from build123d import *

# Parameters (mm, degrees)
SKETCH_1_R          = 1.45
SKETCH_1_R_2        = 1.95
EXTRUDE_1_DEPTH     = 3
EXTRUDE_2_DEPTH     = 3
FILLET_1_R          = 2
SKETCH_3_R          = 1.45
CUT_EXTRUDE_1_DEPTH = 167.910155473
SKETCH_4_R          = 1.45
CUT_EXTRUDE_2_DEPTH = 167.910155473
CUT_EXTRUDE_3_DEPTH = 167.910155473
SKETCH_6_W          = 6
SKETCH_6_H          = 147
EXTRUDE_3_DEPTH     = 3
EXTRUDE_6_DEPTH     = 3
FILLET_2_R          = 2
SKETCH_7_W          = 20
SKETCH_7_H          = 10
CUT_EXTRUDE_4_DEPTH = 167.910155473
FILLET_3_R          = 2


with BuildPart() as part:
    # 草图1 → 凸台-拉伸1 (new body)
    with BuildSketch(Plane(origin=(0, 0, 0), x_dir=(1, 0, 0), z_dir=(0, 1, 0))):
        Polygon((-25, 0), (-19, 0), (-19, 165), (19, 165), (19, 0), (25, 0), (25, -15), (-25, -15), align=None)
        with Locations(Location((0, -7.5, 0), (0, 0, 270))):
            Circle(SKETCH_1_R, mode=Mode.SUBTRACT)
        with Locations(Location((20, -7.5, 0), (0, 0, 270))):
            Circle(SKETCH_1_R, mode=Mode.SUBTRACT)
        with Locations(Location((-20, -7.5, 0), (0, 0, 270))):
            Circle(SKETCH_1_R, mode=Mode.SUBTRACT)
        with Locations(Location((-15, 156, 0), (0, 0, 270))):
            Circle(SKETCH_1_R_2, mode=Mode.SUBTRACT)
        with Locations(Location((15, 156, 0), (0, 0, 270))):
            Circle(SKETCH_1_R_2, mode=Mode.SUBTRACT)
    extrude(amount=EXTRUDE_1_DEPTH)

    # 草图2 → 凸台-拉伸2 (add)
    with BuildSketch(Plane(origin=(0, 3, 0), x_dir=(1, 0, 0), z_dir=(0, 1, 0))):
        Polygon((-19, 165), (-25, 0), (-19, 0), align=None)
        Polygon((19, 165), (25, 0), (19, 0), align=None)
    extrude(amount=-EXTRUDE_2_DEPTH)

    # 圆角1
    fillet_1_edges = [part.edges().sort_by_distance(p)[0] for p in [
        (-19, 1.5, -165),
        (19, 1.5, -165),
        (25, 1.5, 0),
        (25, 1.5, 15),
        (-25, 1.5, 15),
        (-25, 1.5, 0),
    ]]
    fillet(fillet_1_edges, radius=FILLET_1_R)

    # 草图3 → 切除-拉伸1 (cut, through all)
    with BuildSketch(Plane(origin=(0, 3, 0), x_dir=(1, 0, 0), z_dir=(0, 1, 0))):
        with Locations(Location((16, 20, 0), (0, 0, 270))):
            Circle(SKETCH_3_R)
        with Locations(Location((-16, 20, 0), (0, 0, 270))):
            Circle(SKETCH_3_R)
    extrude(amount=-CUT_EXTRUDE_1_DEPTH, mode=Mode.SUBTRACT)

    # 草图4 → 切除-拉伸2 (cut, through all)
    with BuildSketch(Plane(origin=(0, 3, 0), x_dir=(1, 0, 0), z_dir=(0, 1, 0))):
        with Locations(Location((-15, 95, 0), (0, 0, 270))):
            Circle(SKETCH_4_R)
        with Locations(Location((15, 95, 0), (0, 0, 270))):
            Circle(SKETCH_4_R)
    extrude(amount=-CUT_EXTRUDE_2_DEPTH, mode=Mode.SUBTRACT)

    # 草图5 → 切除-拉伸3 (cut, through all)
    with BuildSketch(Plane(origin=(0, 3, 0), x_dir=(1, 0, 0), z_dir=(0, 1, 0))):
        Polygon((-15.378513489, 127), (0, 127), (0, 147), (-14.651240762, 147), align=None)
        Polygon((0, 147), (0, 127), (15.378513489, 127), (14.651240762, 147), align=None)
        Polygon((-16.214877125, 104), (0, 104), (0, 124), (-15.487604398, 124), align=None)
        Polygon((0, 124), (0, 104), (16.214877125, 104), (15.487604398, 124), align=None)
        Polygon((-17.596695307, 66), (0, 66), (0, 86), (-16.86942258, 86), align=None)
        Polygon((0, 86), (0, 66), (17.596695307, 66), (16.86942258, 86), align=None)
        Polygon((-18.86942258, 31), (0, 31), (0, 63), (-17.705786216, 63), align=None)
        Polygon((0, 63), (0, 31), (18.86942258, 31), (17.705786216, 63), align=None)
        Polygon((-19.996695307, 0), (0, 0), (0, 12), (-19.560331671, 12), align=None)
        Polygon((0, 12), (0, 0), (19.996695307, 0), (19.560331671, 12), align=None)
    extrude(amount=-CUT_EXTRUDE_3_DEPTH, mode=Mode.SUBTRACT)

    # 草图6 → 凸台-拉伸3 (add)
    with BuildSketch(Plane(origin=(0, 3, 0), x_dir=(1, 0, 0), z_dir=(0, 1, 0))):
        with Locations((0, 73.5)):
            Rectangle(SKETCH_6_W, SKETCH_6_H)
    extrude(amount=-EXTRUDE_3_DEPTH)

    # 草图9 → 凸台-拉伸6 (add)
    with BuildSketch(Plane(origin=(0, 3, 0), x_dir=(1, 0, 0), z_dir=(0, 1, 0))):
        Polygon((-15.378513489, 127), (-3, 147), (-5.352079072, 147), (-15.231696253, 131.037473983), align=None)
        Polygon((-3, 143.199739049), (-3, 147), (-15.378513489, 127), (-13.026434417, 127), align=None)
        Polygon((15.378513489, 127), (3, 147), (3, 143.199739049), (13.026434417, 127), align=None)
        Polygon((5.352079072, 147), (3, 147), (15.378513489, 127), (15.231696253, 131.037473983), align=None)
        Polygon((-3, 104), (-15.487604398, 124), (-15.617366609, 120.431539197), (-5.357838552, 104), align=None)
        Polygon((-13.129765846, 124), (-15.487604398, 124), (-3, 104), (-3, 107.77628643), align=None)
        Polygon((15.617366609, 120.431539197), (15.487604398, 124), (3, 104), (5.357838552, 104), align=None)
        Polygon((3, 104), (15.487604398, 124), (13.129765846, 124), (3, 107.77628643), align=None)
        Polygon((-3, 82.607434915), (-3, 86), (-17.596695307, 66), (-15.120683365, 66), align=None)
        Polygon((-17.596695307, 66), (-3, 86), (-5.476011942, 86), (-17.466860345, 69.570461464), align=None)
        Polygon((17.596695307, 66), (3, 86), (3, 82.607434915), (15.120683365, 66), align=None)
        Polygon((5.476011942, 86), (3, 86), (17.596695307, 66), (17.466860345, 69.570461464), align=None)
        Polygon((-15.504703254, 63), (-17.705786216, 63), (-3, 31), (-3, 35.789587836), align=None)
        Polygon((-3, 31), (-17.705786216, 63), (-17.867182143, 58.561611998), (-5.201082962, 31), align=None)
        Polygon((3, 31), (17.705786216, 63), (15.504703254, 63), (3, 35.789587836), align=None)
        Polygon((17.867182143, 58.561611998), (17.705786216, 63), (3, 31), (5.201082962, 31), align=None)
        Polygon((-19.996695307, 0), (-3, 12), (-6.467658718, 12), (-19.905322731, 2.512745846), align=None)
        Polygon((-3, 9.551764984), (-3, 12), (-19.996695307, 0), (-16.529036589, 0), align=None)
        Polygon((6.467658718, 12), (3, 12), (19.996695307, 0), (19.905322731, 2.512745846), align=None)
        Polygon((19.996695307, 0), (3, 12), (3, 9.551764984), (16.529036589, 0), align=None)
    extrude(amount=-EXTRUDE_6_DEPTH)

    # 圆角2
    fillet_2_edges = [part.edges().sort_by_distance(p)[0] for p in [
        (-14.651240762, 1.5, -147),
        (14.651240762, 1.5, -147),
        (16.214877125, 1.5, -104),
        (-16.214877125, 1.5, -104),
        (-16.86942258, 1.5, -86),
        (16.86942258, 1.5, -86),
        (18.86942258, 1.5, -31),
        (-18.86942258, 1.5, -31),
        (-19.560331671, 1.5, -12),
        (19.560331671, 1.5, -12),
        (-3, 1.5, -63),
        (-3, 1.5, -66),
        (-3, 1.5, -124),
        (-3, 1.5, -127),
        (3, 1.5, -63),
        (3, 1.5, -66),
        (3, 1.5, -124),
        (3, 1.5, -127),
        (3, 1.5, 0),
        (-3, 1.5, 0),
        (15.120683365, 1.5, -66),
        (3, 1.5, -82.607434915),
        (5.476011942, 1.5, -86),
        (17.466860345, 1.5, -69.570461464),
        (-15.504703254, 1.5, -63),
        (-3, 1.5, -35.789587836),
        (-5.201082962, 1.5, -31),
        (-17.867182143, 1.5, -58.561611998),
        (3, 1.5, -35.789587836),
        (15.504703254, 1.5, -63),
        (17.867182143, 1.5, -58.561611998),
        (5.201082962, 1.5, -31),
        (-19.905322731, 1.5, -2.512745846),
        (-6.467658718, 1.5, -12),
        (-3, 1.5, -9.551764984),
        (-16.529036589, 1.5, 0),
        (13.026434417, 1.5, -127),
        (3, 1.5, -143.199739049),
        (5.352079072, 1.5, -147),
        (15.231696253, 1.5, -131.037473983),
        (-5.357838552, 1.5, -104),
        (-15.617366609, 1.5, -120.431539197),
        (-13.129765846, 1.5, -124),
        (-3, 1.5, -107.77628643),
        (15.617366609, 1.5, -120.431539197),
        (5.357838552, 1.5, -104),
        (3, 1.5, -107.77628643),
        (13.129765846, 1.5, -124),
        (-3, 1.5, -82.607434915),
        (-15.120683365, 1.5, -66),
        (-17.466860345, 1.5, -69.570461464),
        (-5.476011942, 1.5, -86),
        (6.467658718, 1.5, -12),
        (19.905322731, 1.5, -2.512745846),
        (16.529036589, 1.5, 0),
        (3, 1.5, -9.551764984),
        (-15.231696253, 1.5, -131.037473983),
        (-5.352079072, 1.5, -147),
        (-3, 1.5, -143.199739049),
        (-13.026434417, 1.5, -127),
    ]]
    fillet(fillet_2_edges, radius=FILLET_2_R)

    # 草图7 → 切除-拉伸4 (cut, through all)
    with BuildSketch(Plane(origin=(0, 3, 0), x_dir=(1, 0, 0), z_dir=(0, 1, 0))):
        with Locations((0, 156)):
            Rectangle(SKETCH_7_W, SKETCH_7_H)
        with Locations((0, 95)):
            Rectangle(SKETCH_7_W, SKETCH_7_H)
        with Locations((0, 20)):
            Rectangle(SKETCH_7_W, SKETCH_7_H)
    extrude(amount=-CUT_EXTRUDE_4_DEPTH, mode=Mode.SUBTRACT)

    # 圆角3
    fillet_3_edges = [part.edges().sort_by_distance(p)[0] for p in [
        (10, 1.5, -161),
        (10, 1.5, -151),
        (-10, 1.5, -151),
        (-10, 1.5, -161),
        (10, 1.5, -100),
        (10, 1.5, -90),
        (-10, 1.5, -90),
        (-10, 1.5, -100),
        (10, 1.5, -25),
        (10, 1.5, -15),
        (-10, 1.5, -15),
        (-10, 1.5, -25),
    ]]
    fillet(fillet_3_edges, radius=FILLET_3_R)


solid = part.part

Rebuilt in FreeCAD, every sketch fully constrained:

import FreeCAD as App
import Part
import Sketcher

V = App.Vector
Q = App.Units.Quantity


def edges_at(feature, points):
    """Names of the edges that pass closest to the given points."""
    edges = feature.Shape.Edges
    near = lambda p: min(range(len(edges)), key=lambda i: edges[i].distToShape(Part.Vertex(*p))[0])
    return sorted({f"Edge{near(p) + 1}" for p in points})


def add_polygon(sketch, points):
    """Adds a closed chain of lines whose ends are joined by coincident constraints."""
    first, n = sketch.GeometryCount, len(points)
    for a, b in zip(points, points[1:] + points[:1]):
        sketch.addGeometry(Part.LineSegment(App.Vector(*a, 0), App.Vector(*b, 0)), False)
    for i in range(n):
        sketch.addConstraint(Sketcher.Constraint("Coincident", first + i, 2, first + (i + 1) % n, 1))

doc = App.newDocument("Part")
body = doc.addObject("PartDesign::Body", "Body")

sketch1 = body.newObject("Sketcher::SketchObject", "Sketch")
sketch1.AttachmentSupport = (doc.getObject("XZ_Plane"), [""])
sketch1.MapMode = "FlatFace"
add_polygon(sketch1, [(-19, 0), (-25, 0), (-25, 15), (25, 15), (25, 0), (19, 0), (19, -165), (-19, -165)])
sketch1.addGeometry(Part.Circle(V(20, 7.5, 0), V(0, 0, 1), 1.4), False)
sketch1.addGeometry(Part.Circle(V(0, 7.5, 0), V(0, 0, 1), 1.4), False)
sketch1.addGeometry(Part.Circle(V(-20, 7.5, 0), V(0, 0, 1), 1.4), False)
sketch1.addGeometry(Part.Circle(V(15, -156, 0), V(0, 0, 1), 1.9), False)
sketch1.addGeometry(Part.Circle(V(-15, -156, 0), V(0, 0, 1), 1.9), False)
sketch1.addConstraint([
    Sketcher.Constraint("Horizontal", 0),
    Sketcher.Constraint("Vertical", 1),
    Sketcher.Constraint("Horizontal", 2),
    Sketcher.Constraint("Vertical", 3),
    Sketcher.Constraint("Horizontal", 4),
    Sketcher.Constraint("Vertical", 5),
    Sketcher.Constraint("Horizontal", 6),
    Sketcher.Constraint("Vertical", 7),
    Sketcher.Constraint("Equal", 8, 9),
    Sketcher.Constraint("Equal", 9, 10),
    Sketcher.Constraint("Equal", 11, 12),
    Sketcher.Constraint("Symmetric", 0, 2, 3, 2, -1, 1),
    Sketcher.Constraint("Symmetric", 8, 3, 10, 3, -2),
    Sketcher.Constraint("Symmetric", 11, 3, 12, 3, -2),
    Sketcher.Constraint("Symmetric", 4, 2, 7, 2, -2),
    Sketcher.Constraint("PointOnObject", 9, 3, -2),
    Sketcher.Constraint("Horizontal", 8, 3, 9, 3),
    Sketcher.Constraint("Diameter", 8, Q("2.9 mm")),
    Sketcher.Constraint("Diameter", 11, Q("3.9 mm")),
    Sketcher.Constraint("DistanceX", 0, 2, 0, 1, Q("6 mm")),
    Sketcher.Constraint("DistanceX", 2, 1, 2, 2, Q("50 mm")),
    Sketcher.Constraint("DistanceY", 1, 1, 1, 2, Q("15 mm")),
    Sketcher.Constraint("DistanceY", 5, 2, 5, 1, Q("165 mm")),
    Sketcher.Constraint("DistanceX", -1, 1, 8, 3, Q("20 mm")),
    Sketcher.Constraint("DistanceX", -1, 1, 11, 3, Q("15 mm")),
    Sketcher.Constraint("DistanceY", 11, 3, -1, 1, Q("156 mm")),
    Sketcher.Constraint("DistanceY", -1, 1, 8, 3, Q("7.5 mm")),
])
pad1 = body.newObject("PartDesign::Pad", "Pad")
pad1.Profile = sketch1
pad1.Length = 3
pad1.Reversed = True

sketch2 = body.newObject("Sketcher::SketchObject", "Sketch001")
sketch2.AttachmentSupport = (doc.getObject("XZ_Plane"), [""])
sketch2.MapMode = "FlatFace"
sketch2.AttachmentOffset = App.Placement(V(0, 0, -3), App.Rotation())
add_polygon(sketch2, [(-19, -165), (-25, 0), (-19, 0)])
add_polygon(sketch2, [(25, 0), (19, -165), (19, 0)])
sketch2.addConstraint([
    Sketcher.Constraint("Horizontal", 1),
    Sketcher.Constraint("Vertical", 2),
    Sketcher.Constraint("Vertical", 4),
    Sketcher.Constraint("Horizontal", 5),
    Sketcher.Constraint("Symmetric", 1, 2, 4, 2, -1, 1),
    Sketcher.Constraint("Symmetric", 0, 2, 5, 2, -2),
    Sketcher.Constraint("Horizontal", 2, 2, 3, 2),
    Sketcher.Constraint("DistanceX", 1, 1, 1, 2, Q("6 mm")),
    Sketcher.Constraint("DistanceY", 2, 2, 2, 1, Q("165 mm")),
    Sketcher.Constraint("DistanceX", 0, 2, -1, 1, Q("25 mm")),
])
pad2 = body.newObject("PartDesign::Pad", "Pad001")
pad2.Profile = sketch2
pad2.Length = 3
doc.recompute()

fillet = body.newObject("PartDesign::Fillet", "Fillet")
fillet.Base = (pad2, edges_at(pad2, [
    (-19, 1.5, -165),
    (19, 1.5, -165),
    (25, 1.5, 0),
    (25, 1.5, 15),
    (-25, 1.5, 15),
    (-25, 1.5, 0),
]))
fillet.Radius = 2

sketch3 = body.newObject("Sketcher::SketchObject", "Sketch002")
sketch3.AttachmentSupport = (doc.getObject("XZ_Plane"), [""])
sketch3.MapMode = "FlatFace"
sketch3.AttachmentOffset = App.Placement(V(0, 0, -3), App.Rotation())
sketch3.addGeometry([
    Part.Circle(V(16, -20, 0), V(0, 0, 1), 1.4),
    Part.Circle(V(-16, -20, 0), V(0, 0, 1), 1.4),
], False)
sketch3.addConstraint([
    Sketcher.Constraint("Equal", 0, 1),
    Sketcher.Constraint("Symmetric", 0, 3, 1, 3, -2),
    Sketcher.Constraint("Diameter", 0, Q("2.9 mm")),
    Sketcher.Constraint("DistanceX", -1, 1, 0, 3, Q("16 mm")),
    Sketcher.Constraint("DistanceY", 0, 3, -1, 1, Q("20 mm")),
])
pocket1 = body.newObject("PartDesign::Pocket", "Pocket")
pocket1.Profile = sketch3
pocket1.Type = "ThroughAll"
pocket1.Reversed = True

sketch4 = body.newObject("Sketcher::SketchObject", "Sketch003")
sketch4.AttachmentSupport = (doc.getObject("XZ_Plane"), [""])
sketch4.MapMode = "FlatFace"
sketch4.AttachmentOffset = App.Placement(V(0, 0, -3), App.Rotation())
sketch4.addGeometry([
    Part.Circle(V(-15, -95, 0), V(0, 0, 1), 1.4),
    Part.Circle(V(15, -95, 0), V(0, 0, 1), 1.4),
], False)
sketch4.addConstraint([
    Sketcher.Constraint("Equal", 0, 1),
    Sketcher.Constraint("Symmetric", 0, 3, 1, 3, -2),
    Sketcher.Constraint("Diameter", 0, Q("2.9 mm")),
    Sketcher.Constraint("DistanceX", 0, 3, -1, 1, Q("15 mm")),
    Sketcher.Constraint("DistanceY", 0, 3, -1, 1, Q("95 mm")),
])
pocket2 = body.newObject("PartDesign::Pocket", "Pocket001")
pocket2.Profile = sketch4
pocket2.Type = "ThroughAll"
pocket2.Reversed = True

sketch5 = body.newObject("Sketcher::SketchObject", "Sketch004")
sketch5.AttachmentSupport = (doc.getObject("XZ_Plane"), [""])
sketch5.MapMode = "FlatFace"
sketch5.AttachmentOffset = App.Placement(V(0, 0, -3), App.Rotation())
add_polygon(sketch5, [(-15.378513, -127), (15.378513, -127), (14.651241, -147), (-14.651241, -147)])
add_polygon(sketch5, [(-16.214877, -104), (16.214877, -104), (15.487604, -124), (-15.487604, -124)])
add_polygon(sketch5, [(-17.596695, -66), (17.596695, -66), (16.869423, -86), (-16.869423, -86)])
add_polygon(sketch5, [(-18.869423, -31), (18.869423, -31), (17.705786, -63), (-17.705786, -63)])
add_polygon(sketch5, [(-19.996695, 0), (19.996695, 0), (19.560332, -12), (-19.560332, -12)])
sketch5.addConstraint([
    Sketcher.Constraint("Horizontal", 0),
    Sketcher.Constraint("Horizontal", 2),
    Sketcher.Constraint("Horizontal", 4),
    Sketcher.Constraint("Horizontal", 6),
    Sketcher.Constraint("Horizontal", 8),
    Sketcher.Constraint("Horizontal", 10),
    Sketcher.Constraint("Horizontal", 12),
    Sketcher.Constraint("Horizontal", 14),
    Sketcher.Constraint("Horizontal", 16),
    Sketcher.Constraint("Horizontal", 18),
    Sketcher.Constraint("Symmetric", 16, 2, 19, 2, -1, 1),
    Sketcher.Constraint("Parallel", 1, 5),
    Sketcher.Constraint("Parallel", 3, 7),
    Sketcher.Constraint("Parallel", 5, 9),
    Sketcher.Constraint("Parallel", 7, 11),
    Sketcher.Constraint("Parallel", 9, 13),
    Sketcher.Constraint("Parallel", 11, 15),
    Sketcher.Constraint("Parallel", 13, 17),
    Sketcher.Constraint("Parallel", 15, 19),
    Sketcher.Constraint("Equal", 1, 3),
    Sketcher.Constraint("Equal", 3, 5),
    Sketcher.Constraint("Equal", 7, 9),
    Sketcher.Constraint("DistanceY", 0, 2, -1, 1, Q("127 mm")),
    Sketcher.Constraint("DistanceY", 1, 2, -1, 1, Q("147 mm")),
    Sketcher.Constraint("DistanceY", 4, 2, -1, 1, Q("104 mm")),
    Sketcher.Constraint("DistanceY", 8, 2, -1, 1, Q("66 mm")),
    Sketcher.Constraint("DistanceY", 12, 2, -1, 1, Q("31 mm")),
    Sketcher.Constraint("DistanceY", 13, 2, -1, 1, Q("63 mm")),
    Sketcher.Constraint("DistanceY", 17, 2, -1, 1, Q("12 mm")),
    Sketcher.Constraint("DistanceX", 9, 2, 12, 2, Q("2 mm")),
    Sketcher.Constraint("DistanceX", 8, 2, 16, 2, Q("2.4 mm")),
    Sketcher.Constraint("DistanceX", 2, 2, 2, 1, Q("29.302482 mm")),
    Sketcher.Constraint("DistanceX", 6, 2, 6, 1, Q("30.975209 mm")),
    Sketcher.Constraint("DistanceX", 8, 1, 8, 2, Q("35.193391 mm")),
    Sketcher.Constraint("DistanceX", 16, 1, 16, 2, Q("39.993391 mm")),
    Sketcher.Constraint("DistanceX", 6, 2, 8, 2, Q("33.0843 mm")),
    Sketcher.Constraint("Distance", 1, Q("20.013219 mm")),
    Sketcher.Constraint("DistanceX", 12, 1, 12, 2, Q("37.738845 mm")),
    Sketcher.Constraint("DistanceX", -1, 1, 1, 2, Q("14.651241 mm")),
])
pocket3 = body.newObject("PartDesign::Pocket", "Pocket002")
pocket3.Profile = sketch5
pocket3.Type = "ThroughAll"
pocket3.Reversed = True

sketch6 = body.newObject("Sketcher::SketchObject", "Sketch005")
sketch6.AttachmentSupport = (doc.getObject("XZ_Plane"), [""])
sketch6.MapMode = "FlatFace"
sketch6.AttachmentOffset = App.Placement(V(0, 0, -3), App.Rotation())
add_polygon(sketch6, [(-3, -147), (-3, 0), (3, 0), (3, -147)])
sketch6.addConstraint([
    Sketcher.Constraint("Vertical", 0),
    Sketcher.Constraint("Horizontal", 1),
    Sketcher.Constraint("Vertical", 2),
    Sketcher.Constraint("Horizontal", 3),
    Sketcher.Constraint("Symmetric", 0, 2, 1, 2, -1, 1),
    Sketcher.Constraint("DistanceX", 1, 1, 1, 2, Q("6 mm")),
    Sketcher.Constraint("DistanceY", 0, 1, 0, 2, Q("147 mm")),
])
pad3 = body.newObject("PartDesign::Pad", "Pad002")
pad3.Profile = sketch6
pad3.Length = 3

sketch7 = body.newObject("Sketcher::SketchObject", "Sketch006")
sketch7.AttachmentSupport = (doc.getObject("XZ_Plane"), [""])
sketch7.MapMode = "FlatFace"
sketch7.AttachmentOffset = App.Placement(V(0, 0, -3), App.Rotation())
add_polygon(sketch7, [(-3, -147), (-5.4, -147), (-15.2, -131), (-15.4, -127), (-13, -127), (-3, -143.2)])
add_polygon(sketch7, [(3, -147), (3, -143.2), (13, -127), (15.4, -127), (15.2, -131), (5.4, -147)])
add_polygon(sketch7, [(-15.5, -124), (-15.6, -120.4), (-5.4, -104), (-3, -104), (-3, -107.8), (-13.1, -124)])
add_polygon(sketch7, [(15.6, -120.4), (15.5, -124), (13.1, -124), (3, -107.8), (3, -104), (5.4, -104)])
add_polygon(sketch7, [(-3, -82.6), (-3, -86), (-5.5, -86), (-17.5, -69.6), (-17.6, -66), (-15.1, -66)])
add_polygon(sketch7, [(3, -86), (3, -82.6), (15.1, -66), (17.6, -66), (17.5, -69.6), (5.5, -86)])
add_polygon(sketch7, [(-15.5, -63), (-17.7, -63), (-17.9, -58.6), (-5.2, -31), (-3, -31), (-3, -35.8)])
add_polygon(sketch7, [(17.7, -63), (15.5, -63), (3, -35.8), (3, -31), (5.2, -31), (17.9, -58.6)])
add_polygon(sketch7, [(-3, -12), (-6.5, -12), (-19.9, -2.5), (-20, 0), (-16.5, 0), (-3, -9.6)])
add_polygon(sketch7, [(6.5, -12), (3, -12), (3, -9.6), (16.5, 0), (20, 0), (19.9, -2.5)])
sketch7.addConstraint([
    Sketcher.Constraint("Horizontal", 0),
    Sketcher.Constraint("Horizontal", 3),
    Sketcher.Constraint("Vertical", 5),
    Sketcher.Constraint("Vertical", 6),
    Sketcher.Constraint("Horizontal", 8),
    Sketcher.Constraint("Horizontal", 11),
    Sketcher.Constraint("Horizontal", 14),
    Sketcher.Constraint("Vertical", 15),
    Sketcher.Constraint("Horizontal", 17),
    Sketcher.Constraint("Horizontal", 19),
    Sketcher.Constraint("Vertical", 21),
    Sketcher.Constraint("Horizontal", 22),
    Sketcher.Constraint("Vertical", 24),
    Sketcher.Constraint("Horizontal", 25),
    Sketcher.Constraint("Horizontal", 28),
    Sketcher.Constraint("Vertical", 30),
    Sketcher.Constraint("Horizontal", 32),
    Sketcher.Constraint("Horizontal", 35),
    Sketcher.Constraint("Horizontal", 36),
    Sketcher.Constraint("Horizontal", 39),
    Sketcher.Constraint("Vertical", 40),
    Sketcher.Constraint("Horizontal", 42),
    Sketcher.Constraint("Vertical", 44),
    Sketcher.Constraint("Horizontal", 45),
    Sketcher.Constraint("Horizontal", 48),
    Sketcher.Constraint("Horizontal", 51),
    Sketcher.Constraint("Vertical", 53),
    Sketcher.Constraint("Horizontal", 54),
    Sketcher.Constraint("Vertical", 55),
    Sketcher.Constraint("Horizontal", 57),
    Sketcher.Constraint("Symmetric", 51, 2, 56, 2, -1, 1),
    Sketcher.Constraint("Symmetric", 4, 2, 6, 2, -2),
    Sketcher.Constraint("Symmetric", 3, 2, 7, 2, -2),
    Sketcher.Constraint("Symmetric", 1, 2, 9, 2, -2),
    Sketcher.Constraint("Symmetric", 0, 2, 10, 2, -2),
    Sketcher.Constraint("Symmetric", 17, 2, 18, 2, -2),
    Sketcher.Constraint("Symmetric", 15, 2, 20, 2, -2),
    Sketcher.Constraint("Symmetric", 13, 2, 22, 2, -2),
    Sketcher.Constraint("Symmetric", 12, 2, 23, 2, -2),
    Sketcher.Constraint("Symmetric", 29, 2, 30, 2, -2),
    Sketcher.Constraint("Symmetric", 28, 2, 31, 2, -2),
    Sketcher.Constraint("Symmetric", 26, 2, 33, 2, -2),
    Sketcher.Constraint("Symmetric", 25, 2, 34, 2, -2),
    Sketcher.Constraint("Symmetric", 41, 2, 42, 2, -2),
    Sketcher.Constraint("Symmetric", 40, 2, 43, 2, -2),
    Sketcher.Constraint("Symmetric", 38, 2, 45, 2, -2),
    Sketcher.Constraint("Symmetric", 37, 2, 46, 2, -2),
    Sketcher.Constraint("Symmetric", 53, 2, 54, 2, -2),
    Sketcher.Constraint("Symmetric", 50, 2, 57, 2, -2),
    Sketcher.Constraint("Symmetric", 49, 2, 58, 2, -2),
    Sketcher.Constraint("Parallel", 1, 4),
    Sketcher.Constraint("Parallel", 2, 12),
    Sketcher.Constraint("Parallel", 13, 16),
    Sketcher.Constraint("Parallel", 9, 18),
    Sketcher.Constraint("Parallel", 20, 23),
    Sketcher.Constraint("Parallel", 12, 27),
    Sketcher.Constraint("Parallel", 26, 29),
    Sketcher.Constraint("Parallel", 18, 33),
    Sketcher.Constraint("Parallel", 27, 37),
    Sketcher.Constraint("Parallel", 38, 41),
    Sketcher.Constraint("Parallel", 33, 47),
    Sketcher.Constraint("Parallel", 37, 50),
    Sketcher.Constraint("Parallel", 49, 52),
    Sketcher.Constraint("Parallel", 56, 59),
    Sketcher.Constraint("Horizontal", 52, 2, 55, 2),
    Sketcher.Constraint("Vertical", 5, 2, 14, 2),
    Sketcher.Constraint("Vertical", 15, 2, 24, 2),
    Sketcher.Constraint("Vertical", 29, 2, 39, 2),
    Sketcher.Constraint("Vertical", 40, 2, 52, 2),
    Sketcher.Constraint("Equal", 0, 3),
    Sketcher.Constraint("Equal", 14, 17),
    Sketcher.Constraint("Equal", 25, 28),
    Sketcher.Constraint("Equal", 36, 39),
    Sketcher.Constraint("Equal", 48, 51),
    Sketcher.Constraint("DistanceY", 0, 2, -1, 1, Q("147 mm")),
    Sketcher.Constraint("DistanceY", 2, 2, -1, 1, Q("127 mm")),
    Sketcher.Constraint("DistanceX", 4, 2, -1, 1, Q("3 mm")),
    Sketcher.Constraint("DistanceY", 13, 2, -1, 1, Q("104 mm")),
    Sketcher.Constraint("DistanceY", 16, 2, -1, 1, Q("124 mm")),
    Sketcher.Constraint("DistanceY", 24, 2, -1, 1, Q("86 mm")),
    Sketcher.Constraint("DistanceY", 27, 2, -1, 1, Q("66 mm")),
    Sketcher.Constraint("DistanceY", 36, 2, -1, 1, Q("63 mm")),
    Sketcher.Constraint("DistanceY", 38, 2, -1, 1, Q("31 mm")),
    Sketcher.Constraint("DistanceY", 48, 2, -1, 1, Q("12 mm")),
    Sketcher.Constraint("DistanceX", 0, 2, 0, 1, Q("2.352079 mm")),
    Sketcher.Constraint("DistanceX", 14, 1, 14, 2, Q("2.357839 mm")),
    Sketcher.Constraint("DistanceX", 25, 2, 25, 1, Q("2.476012 mm")),
    Sketcher.Constraint("DistanceX", 48, 2, 48, 1, Q("3.467659 mm")),
    Sketcher.Constraint("DistanceY", 5, 2, 5, 1, Q("3.800261 mm")),
    Sketcher.Constraint("DistanceY", 4, 2, 12, 2, Q("22.7682 mm")),
    Sketcher.Constraint("DistanceX", 12, 2, 16, 2, Q("2.487601 mm")),
    Sketcher.Constraint("DistanceX", 37, 2, 28, 2, Q("2.746499 mm")),
    Sketcher.Constraint("DistanceX", 37, 2, 38, 2, Q("12.666099 mm")),
    Sketcher.Constraint("Distance", 1, Q("18.772562 mm")),
    Sketcher.Constraint("Distance", 13, Q("19.371458 mm")),
    Sketcher.Constraint("Distance", 27, Q("3.572821 mm")),
    Sketcher.Constraint("Distance", 37, Q("4.441322 mm")),
    Sketcher.Constraint("Distance", 49, Q("16.44928 mm")),
    Sketcher.Constraint("Distance", 52, Q("16.561131 mm")),
    Sketcher.Constraint("DistanceX", 36, 2, 36, 1, Q("2.201083 mm")),
])
pad4 = body.newObject("PartDesign::Pad", "Pad003")
pad4.Profile = sketch7
pad4.Length = 3
doc.recompute()

fillet2 = body.newObject("PartDesign::Fillet", "Fillet001")
fillet2.Base = (pad4, edges_at(pad4, [
    (-14.651, 1.5, -147),
    (14.651, 1.5, -147),
    (16.215, 1.5, -104),
    (-16.215, 1.5, -104),
    (-16.869, 1.5, -86),
    (16.869, 1.5, -86),
    (18.869, 1.5, -31),
    (-18.869, 1.5, -31),
    (-19.56, 1.5, -12),
    (19.56, 1.5, -12),
    (-3, 1.5, -63),
    (-3, 1.5, -66),
    (-3, 1.5, -124),
    (-3, 1.5, -127),
    (3, 1.5, -63),
    (3, 1.5, -66),
    (3, 1.5, -124),
    (3, 1.5, -127),
    (3, 1.5, 0),
    (-3, 1.5, 0),
    (15.121, 1.5, -66),
    (3, 1.5, -82.607),
    (5.476, 1.5, -86),
    (17.467, 1.5, -69.57),
    (-15.505, 1.5, -63),
    (-3, 1.5, -35.79),
    (-5.201, 1.5, -31),
    (-17.867, 1.5, -58.562),
    (3, 1.5, -35.79),
    (15.505, 1.5, -63),
    (17.867, 1.5, -58.562),
    (5.201, 1.5, -31),
    (-19.905, 1.5, -2.513),
    (-6.468, 1.5, -12),
    (-3, 1.5, -9.552),
    (-16.529, 1.5, 0),
    (13.026, 1.5, -127),
    (3, 1.5, -143.2),
    (5.352, 1.5, -147),
    (15.232, 1.5, -131.037),
    (-5.358, 1.5, -104),
    (-15.617, 1.5, -120.432),
    (-13.13, 1.5, -124),
    (-3, 1.5, -107.776),
    (15.617, 1.5, -120.432),
    (5.358, 1.5, -104),
    (3, 1.5, -107.776),
    (13.13, 1.5, -124),
    (-3, 1.5, -82.607),
    (-15.121, 1.5, -66),
    (-17.467, 1.5, -69.57),
    (-5.476, 1.5, -86),
    (6.468, 1.5, -12),
    (19.905, 1.5, -2.513),
    (16.529, 1.5, 0),
    (3, 1.5, -9.552),
    (-15.232, 1.5, -131.037),
    (-5.352, 1.5, -147),
    (-3, 1.5, -143.2),
    (-13.026, 1.5, -127),
]))
fillet2.Radius = 2

sketch8 = body.newObject("Sketcher::SketchObject", "Sketch007")
sketch8.AttachmentSupport = (doc.getObject("XZ_Plane"), [""])
sketch8.MapMode = "FlatFace"
sketch8.AttachmentOffset = App.Placement(V(0, 0, -3), App.Rotation())
add_polygon(sketch8, [(-10, -161), (-10, -151), (10, -151), (10, -161)])
add_polygon(sketch8, [(-10, -100), (-10, -90), (10, -90), (10, -100)])
add_polygon(sketch8, [(-10, -25), (-10, -15), (10, -15), (10, -25)])
sketch8.addConstraint([
    Sketcher.Constraint("Vertical", 0),
    Sketcher.Constraint("Horizontal", 1),
    Sketcher.Constraint("Vertical", 2),
    Sketcher.Constraint("Horizontal", 3),
    Sketcher.Constraint("Vertical", 4),
    Sketcher.Constraint("Horizontal", 5),
    Sketcher.Constraint("Vertical", 6),
    Sketcher.Constraint("Horizontal", 7),
    Sketcher.Constraint("Vertical", 8),
    Sketcher.Constraint("Horizontal", 9),
    Sketcher.Constraint("Vertical", 10),
    Sketcher.Constraint("Horizontal", 11),
    Sketcher.Constraint("Vertical", 3, 2, 4, 2),
    Sketcher.Constraint("Vertical", 2, 2, 5, 2),
    Sketcher.Constraint("Vertical", 7, 2, 8, 2),
    Sketcher.Constraint("Vertical", 6, 2, 9, 2),
    Sketcher.Constraint("Equal", 2, 4),
    Sketcher.Constraint("Equal", 6, 8),
    Sketcher.Constraint("DistanceX", 1, 1, 1, 2, Q("20 mm")),
    Sketcher.Constraint("DistanceY", 0, 1, 0, 2, Q("10 mm")),
    Sketcher.Constraint("DistanceX", 0, 2, -1, 1, Q("10 mm")),
    Sketcher.Constraint("DistanceY", 0, 2, -1, 1, Q("151 mm")),
    Sketcher.Constraint("DistanceY", 4, 2, -1, 1, Q("90 mm")),
    Sketcher.Constraint("DistanceY", 8, 2, -1, 1, Q("15 mm")),
])
pocket4 = body.newObject("PartDesign::Pocket", "Pocket003")
pocket4.Profile = sketch8
pocket4.Type = "ThroughAll"
pocket4.Reversed = True
doc.recompute()

fillet3 = body.newObject("PartDesign::Fillet", "Fillet002")
fillet3.Base = (pocket4, edges_at(pocket4, [
    (10, 1.5, -161),
    (10, 1.5, -151),
    (-10, 1.5, -151),
    (-10, 1.5, -161),
    (10, 1.5, -100),
    (10, 1.5, -90),
    (-10, 1.5, -90),
    (-10, 1.5, -100),
    (10, 1.5, -25),
    (10, 1.5, -15),
    (-10, 1.5, -15),
    (-10, 1.5, -25),
]))
fillet3.Radius = 2

doc.recompute()
